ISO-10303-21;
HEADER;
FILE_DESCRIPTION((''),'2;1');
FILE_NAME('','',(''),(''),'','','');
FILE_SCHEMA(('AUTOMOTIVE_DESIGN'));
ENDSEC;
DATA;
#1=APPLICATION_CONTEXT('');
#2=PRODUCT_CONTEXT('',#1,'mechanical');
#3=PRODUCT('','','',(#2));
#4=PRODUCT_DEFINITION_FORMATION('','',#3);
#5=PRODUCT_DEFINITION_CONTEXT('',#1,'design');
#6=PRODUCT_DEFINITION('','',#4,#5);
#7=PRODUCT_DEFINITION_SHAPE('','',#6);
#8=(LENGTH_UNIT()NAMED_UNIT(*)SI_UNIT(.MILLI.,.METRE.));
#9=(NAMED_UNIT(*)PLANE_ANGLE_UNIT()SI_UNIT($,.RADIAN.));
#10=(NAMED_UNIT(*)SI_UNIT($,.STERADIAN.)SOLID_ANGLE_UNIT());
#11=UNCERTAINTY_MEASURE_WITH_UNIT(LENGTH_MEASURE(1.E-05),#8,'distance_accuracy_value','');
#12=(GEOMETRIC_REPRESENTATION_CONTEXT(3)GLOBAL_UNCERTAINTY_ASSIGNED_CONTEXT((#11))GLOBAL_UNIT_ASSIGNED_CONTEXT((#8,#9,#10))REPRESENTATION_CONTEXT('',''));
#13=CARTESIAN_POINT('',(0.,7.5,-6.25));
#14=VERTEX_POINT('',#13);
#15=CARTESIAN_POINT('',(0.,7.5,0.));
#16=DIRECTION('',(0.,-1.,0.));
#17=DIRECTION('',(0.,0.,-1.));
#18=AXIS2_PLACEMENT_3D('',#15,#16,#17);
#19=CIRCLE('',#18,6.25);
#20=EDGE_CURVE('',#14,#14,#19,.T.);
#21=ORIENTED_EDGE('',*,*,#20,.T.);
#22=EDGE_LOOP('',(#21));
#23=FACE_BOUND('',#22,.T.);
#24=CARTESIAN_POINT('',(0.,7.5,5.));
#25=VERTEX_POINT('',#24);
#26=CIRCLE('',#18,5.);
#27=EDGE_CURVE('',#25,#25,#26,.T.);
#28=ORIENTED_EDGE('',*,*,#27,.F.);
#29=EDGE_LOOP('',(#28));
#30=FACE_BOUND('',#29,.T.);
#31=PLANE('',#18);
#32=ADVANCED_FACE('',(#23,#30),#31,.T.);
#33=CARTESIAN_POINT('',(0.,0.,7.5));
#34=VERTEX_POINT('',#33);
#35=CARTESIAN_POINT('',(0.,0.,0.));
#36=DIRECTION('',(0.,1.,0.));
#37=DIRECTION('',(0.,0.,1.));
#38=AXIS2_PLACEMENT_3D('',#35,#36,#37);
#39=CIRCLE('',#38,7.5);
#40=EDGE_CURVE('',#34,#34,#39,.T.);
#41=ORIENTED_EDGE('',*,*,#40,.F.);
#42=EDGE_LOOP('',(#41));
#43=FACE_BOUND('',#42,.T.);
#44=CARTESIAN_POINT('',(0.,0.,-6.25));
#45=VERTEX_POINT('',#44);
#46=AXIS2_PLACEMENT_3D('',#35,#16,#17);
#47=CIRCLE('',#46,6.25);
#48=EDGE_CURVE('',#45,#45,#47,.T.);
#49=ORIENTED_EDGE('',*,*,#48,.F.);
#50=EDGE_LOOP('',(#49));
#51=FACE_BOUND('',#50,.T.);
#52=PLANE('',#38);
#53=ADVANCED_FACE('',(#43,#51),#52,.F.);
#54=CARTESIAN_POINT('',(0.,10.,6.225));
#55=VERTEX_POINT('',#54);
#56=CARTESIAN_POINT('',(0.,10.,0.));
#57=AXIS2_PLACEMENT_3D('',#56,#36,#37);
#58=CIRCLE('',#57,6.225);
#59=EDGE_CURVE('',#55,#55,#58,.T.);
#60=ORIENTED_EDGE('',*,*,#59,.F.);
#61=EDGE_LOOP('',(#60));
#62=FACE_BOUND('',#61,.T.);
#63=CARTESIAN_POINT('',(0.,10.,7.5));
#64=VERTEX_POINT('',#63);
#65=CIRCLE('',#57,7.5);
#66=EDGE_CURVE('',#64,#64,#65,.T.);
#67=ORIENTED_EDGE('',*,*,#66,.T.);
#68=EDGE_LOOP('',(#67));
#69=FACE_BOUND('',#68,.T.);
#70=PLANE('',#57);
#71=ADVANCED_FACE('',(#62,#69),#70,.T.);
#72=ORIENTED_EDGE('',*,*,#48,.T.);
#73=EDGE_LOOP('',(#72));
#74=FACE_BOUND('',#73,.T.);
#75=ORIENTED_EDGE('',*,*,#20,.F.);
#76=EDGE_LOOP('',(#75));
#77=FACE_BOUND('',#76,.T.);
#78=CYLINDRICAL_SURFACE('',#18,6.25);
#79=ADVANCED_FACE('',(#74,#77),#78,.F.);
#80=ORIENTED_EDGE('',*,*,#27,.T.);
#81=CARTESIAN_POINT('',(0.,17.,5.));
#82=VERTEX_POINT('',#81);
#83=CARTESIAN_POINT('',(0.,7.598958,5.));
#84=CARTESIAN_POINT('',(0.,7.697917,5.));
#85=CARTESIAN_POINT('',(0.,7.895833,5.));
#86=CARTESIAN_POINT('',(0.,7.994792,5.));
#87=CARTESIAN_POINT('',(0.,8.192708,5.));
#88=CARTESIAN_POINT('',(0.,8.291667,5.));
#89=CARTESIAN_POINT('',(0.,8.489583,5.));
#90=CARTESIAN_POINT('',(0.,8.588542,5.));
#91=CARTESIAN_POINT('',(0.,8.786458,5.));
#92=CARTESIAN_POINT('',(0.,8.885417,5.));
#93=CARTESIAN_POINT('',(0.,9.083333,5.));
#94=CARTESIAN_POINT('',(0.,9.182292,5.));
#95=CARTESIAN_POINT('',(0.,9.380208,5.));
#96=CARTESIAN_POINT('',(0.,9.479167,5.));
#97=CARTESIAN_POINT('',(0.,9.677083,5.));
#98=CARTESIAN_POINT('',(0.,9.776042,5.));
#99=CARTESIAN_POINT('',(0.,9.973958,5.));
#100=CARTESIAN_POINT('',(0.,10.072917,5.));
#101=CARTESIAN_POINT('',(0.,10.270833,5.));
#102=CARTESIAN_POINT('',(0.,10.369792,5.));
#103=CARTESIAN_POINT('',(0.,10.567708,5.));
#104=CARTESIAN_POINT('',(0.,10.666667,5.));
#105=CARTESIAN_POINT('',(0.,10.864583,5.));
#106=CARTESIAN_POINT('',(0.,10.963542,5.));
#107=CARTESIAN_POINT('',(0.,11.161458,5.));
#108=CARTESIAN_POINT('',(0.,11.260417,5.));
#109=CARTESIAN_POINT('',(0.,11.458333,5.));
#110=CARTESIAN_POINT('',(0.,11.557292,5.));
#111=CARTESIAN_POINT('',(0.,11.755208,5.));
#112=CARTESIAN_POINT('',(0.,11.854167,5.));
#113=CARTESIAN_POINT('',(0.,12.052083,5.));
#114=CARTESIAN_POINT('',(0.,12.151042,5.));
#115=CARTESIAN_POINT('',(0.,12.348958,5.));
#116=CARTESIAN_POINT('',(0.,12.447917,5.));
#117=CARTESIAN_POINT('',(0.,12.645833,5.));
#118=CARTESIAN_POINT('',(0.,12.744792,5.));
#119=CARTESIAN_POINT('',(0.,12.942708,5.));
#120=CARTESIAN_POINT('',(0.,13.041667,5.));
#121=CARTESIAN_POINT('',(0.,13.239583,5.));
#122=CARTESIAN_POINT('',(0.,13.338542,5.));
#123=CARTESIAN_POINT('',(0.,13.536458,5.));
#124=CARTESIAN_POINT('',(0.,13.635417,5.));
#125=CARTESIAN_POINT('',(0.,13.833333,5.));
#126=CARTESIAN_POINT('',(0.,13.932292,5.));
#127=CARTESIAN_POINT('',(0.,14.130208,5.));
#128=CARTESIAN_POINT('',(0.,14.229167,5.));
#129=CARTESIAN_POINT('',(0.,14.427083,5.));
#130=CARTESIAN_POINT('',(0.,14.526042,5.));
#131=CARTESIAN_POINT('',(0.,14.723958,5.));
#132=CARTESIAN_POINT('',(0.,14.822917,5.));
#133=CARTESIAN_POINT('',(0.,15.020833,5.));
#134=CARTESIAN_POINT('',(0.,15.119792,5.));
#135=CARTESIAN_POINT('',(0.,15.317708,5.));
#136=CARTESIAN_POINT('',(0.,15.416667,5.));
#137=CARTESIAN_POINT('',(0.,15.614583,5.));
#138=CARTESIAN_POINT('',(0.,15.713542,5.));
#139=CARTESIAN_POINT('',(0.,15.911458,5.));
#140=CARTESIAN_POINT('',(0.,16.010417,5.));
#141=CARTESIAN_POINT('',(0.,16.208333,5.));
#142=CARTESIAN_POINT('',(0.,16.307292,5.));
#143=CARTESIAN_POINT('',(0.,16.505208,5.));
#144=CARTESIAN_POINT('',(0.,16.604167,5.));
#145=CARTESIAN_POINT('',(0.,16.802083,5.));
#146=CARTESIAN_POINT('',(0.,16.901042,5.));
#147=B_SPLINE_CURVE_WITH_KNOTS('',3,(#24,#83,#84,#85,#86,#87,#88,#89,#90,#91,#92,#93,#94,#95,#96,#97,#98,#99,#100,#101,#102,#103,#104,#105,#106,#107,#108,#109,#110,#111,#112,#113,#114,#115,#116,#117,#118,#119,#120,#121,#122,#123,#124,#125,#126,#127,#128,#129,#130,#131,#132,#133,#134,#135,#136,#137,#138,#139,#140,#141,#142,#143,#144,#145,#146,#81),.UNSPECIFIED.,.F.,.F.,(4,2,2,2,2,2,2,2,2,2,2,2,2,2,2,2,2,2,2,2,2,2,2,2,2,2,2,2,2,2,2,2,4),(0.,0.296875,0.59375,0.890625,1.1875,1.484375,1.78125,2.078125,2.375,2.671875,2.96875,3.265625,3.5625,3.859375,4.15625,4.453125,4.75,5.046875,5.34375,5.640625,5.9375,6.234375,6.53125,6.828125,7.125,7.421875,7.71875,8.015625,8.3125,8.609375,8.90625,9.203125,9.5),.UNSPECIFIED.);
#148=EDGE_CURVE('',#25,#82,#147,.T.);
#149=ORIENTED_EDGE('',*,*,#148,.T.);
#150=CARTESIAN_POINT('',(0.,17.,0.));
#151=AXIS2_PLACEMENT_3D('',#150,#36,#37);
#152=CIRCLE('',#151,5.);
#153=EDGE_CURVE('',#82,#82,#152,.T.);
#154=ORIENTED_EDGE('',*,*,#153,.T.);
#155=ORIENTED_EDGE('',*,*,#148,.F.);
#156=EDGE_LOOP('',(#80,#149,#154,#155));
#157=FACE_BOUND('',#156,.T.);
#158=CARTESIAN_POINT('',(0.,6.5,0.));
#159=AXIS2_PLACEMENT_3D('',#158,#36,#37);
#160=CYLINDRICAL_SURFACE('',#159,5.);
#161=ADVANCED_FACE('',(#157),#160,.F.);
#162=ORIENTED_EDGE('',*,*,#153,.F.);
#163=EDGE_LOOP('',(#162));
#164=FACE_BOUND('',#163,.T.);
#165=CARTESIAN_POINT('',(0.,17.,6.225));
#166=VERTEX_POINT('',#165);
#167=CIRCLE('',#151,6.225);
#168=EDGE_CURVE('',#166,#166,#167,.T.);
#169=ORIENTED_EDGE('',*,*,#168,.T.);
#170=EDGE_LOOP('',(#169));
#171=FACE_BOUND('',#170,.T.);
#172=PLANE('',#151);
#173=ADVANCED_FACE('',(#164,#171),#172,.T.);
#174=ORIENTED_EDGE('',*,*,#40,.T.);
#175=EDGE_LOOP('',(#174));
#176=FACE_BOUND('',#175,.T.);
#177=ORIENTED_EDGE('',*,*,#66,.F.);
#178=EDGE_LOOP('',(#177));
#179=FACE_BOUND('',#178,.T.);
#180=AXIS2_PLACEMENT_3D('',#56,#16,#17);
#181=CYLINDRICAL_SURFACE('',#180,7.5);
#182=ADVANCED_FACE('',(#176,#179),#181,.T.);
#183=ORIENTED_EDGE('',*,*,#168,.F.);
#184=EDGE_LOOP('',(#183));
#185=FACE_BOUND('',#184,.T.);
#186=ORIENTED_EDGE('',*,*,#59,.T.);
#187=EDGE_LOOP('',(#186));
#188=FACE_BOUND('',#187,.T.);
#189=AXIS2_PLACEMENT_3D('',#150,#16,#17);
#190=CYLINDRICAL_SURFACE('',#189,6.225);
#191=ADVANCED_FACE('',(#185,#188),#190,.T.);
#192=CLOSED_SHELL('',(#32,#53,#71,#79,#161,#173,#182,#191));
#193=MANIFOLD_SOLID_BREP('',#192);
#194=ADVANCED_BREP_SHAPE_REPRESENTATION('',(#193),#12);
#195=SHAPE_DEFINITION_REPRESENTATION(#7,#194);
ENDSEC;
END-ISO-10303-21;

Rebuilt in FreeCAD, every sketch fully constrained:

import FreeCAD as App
import Part
import Sketcher
from FreeCAD import Vector
Q = App.Units.Quantity

doc = App.newDocument("Part")
body = doc.addObject("PartDesign::Body", "Body")

# Sketch on XZ plane
sketch1 = body.newObject("Sketcher::SketchObject", "Sketch")
sketch1.AttachmentSupport = (doc.getObject("XZ_Plane"), [""])
sketch1.MapMode = "FlatFace"
sketch1.addGeometry(Part.Circle(Vector(0, 0, 0), Vector(0, 0, 1), 8), False)
sketch1.addConstraint([
    Sketcher.Constraint("Coincident", 0, 3, -1, 1),
    Sketcher.Constraint("Diameter", 0, Q("15 mm")),
])
pad1 = body.newObject("PartDesign::Pad", "Pad")
pad1.Profile = sketch1
pad1.Length = 10
pad1.Reversed = True

# Sketch on XZ plane
sketch2 = body.newObject("Sketcher::SketchObject", "Sketch001")
sketch2.AttachmentSupport = (doc.getObject("XZ_Plane"), [""])
sketch2.MapMode = "FlatFace"
sketch2.addGeometry(Part.Circle(Vector(0, 0, 0), Vector(0, 0, 1), 6), False)
sketch2.addConstraint([
    Sketcher.Constraint("Coincident", 0, 3, -1, 1),
    Sketcher.Constraint("Diameter", 0, Q("12.5 mm")),
])
pocket1 = body.newObject("PartDesign::Pocket", "Pocket")
pocket1.Profile = sketch2
pocket1.Length = 7.5

# Sketch on XZ plane
sketch3 = body.newObject("Sketcher::SketchObject", "Sketch002")
sketch3.AttachmentSupport = (doc.getObject("XZ_Plane"), [""])
sketch3.MapMode = "FlatFace"
sketch3.AttachmentOffset = App.Placement(Vector(0, 0, -10), App.Rotation())
sketch3.addGeometry(Part.Circle(Vector(0, 0, 0), Vector(0, 0, 1), 6), False)
sketch3.addConstraint([
    Sketcher.Constraint("Coincident", 0, 3, -1, 1),
    Sketcher.Constraint("Diameter", 0, Q("12.45 mm")),
])
pad2 = body.newObject("PartDesign::Pad", "Pad001")
pad2.Profile = sketch3
pad2.Length = 7
pad2.Reversed = True

# Sketch on XZ plane
sketch4 = body.newObject("Sketcher::SketchObject", "Sketch003")
sketch4.AttachmentSupport = (doc.getObject("XZ_Plane"), [""])
sketch4.MapMode = "FlatFace"
sketch4.AttachmentOffset = App.Placement(Vector(0, 0, -17), App.Rotation())
sketch4.addGeometry(Part.Circle(Vector(0, 0, 0), Vector(0, 0, 1), 5), False)
sketch4.addConstraint([
    Sketcher.Constraint("Coincident", 0, 3, -1, 1),
    Sketcher.Constraint("Diameter", 0, Q("10 mm")),
])
pocket2 = body.newObject("PartDesign::Pocket", "Pocket001")
pocket2.Profile = sketch4
pocket2.Length = 10.5
pocket2.Reversed = True

doc.recompute()
